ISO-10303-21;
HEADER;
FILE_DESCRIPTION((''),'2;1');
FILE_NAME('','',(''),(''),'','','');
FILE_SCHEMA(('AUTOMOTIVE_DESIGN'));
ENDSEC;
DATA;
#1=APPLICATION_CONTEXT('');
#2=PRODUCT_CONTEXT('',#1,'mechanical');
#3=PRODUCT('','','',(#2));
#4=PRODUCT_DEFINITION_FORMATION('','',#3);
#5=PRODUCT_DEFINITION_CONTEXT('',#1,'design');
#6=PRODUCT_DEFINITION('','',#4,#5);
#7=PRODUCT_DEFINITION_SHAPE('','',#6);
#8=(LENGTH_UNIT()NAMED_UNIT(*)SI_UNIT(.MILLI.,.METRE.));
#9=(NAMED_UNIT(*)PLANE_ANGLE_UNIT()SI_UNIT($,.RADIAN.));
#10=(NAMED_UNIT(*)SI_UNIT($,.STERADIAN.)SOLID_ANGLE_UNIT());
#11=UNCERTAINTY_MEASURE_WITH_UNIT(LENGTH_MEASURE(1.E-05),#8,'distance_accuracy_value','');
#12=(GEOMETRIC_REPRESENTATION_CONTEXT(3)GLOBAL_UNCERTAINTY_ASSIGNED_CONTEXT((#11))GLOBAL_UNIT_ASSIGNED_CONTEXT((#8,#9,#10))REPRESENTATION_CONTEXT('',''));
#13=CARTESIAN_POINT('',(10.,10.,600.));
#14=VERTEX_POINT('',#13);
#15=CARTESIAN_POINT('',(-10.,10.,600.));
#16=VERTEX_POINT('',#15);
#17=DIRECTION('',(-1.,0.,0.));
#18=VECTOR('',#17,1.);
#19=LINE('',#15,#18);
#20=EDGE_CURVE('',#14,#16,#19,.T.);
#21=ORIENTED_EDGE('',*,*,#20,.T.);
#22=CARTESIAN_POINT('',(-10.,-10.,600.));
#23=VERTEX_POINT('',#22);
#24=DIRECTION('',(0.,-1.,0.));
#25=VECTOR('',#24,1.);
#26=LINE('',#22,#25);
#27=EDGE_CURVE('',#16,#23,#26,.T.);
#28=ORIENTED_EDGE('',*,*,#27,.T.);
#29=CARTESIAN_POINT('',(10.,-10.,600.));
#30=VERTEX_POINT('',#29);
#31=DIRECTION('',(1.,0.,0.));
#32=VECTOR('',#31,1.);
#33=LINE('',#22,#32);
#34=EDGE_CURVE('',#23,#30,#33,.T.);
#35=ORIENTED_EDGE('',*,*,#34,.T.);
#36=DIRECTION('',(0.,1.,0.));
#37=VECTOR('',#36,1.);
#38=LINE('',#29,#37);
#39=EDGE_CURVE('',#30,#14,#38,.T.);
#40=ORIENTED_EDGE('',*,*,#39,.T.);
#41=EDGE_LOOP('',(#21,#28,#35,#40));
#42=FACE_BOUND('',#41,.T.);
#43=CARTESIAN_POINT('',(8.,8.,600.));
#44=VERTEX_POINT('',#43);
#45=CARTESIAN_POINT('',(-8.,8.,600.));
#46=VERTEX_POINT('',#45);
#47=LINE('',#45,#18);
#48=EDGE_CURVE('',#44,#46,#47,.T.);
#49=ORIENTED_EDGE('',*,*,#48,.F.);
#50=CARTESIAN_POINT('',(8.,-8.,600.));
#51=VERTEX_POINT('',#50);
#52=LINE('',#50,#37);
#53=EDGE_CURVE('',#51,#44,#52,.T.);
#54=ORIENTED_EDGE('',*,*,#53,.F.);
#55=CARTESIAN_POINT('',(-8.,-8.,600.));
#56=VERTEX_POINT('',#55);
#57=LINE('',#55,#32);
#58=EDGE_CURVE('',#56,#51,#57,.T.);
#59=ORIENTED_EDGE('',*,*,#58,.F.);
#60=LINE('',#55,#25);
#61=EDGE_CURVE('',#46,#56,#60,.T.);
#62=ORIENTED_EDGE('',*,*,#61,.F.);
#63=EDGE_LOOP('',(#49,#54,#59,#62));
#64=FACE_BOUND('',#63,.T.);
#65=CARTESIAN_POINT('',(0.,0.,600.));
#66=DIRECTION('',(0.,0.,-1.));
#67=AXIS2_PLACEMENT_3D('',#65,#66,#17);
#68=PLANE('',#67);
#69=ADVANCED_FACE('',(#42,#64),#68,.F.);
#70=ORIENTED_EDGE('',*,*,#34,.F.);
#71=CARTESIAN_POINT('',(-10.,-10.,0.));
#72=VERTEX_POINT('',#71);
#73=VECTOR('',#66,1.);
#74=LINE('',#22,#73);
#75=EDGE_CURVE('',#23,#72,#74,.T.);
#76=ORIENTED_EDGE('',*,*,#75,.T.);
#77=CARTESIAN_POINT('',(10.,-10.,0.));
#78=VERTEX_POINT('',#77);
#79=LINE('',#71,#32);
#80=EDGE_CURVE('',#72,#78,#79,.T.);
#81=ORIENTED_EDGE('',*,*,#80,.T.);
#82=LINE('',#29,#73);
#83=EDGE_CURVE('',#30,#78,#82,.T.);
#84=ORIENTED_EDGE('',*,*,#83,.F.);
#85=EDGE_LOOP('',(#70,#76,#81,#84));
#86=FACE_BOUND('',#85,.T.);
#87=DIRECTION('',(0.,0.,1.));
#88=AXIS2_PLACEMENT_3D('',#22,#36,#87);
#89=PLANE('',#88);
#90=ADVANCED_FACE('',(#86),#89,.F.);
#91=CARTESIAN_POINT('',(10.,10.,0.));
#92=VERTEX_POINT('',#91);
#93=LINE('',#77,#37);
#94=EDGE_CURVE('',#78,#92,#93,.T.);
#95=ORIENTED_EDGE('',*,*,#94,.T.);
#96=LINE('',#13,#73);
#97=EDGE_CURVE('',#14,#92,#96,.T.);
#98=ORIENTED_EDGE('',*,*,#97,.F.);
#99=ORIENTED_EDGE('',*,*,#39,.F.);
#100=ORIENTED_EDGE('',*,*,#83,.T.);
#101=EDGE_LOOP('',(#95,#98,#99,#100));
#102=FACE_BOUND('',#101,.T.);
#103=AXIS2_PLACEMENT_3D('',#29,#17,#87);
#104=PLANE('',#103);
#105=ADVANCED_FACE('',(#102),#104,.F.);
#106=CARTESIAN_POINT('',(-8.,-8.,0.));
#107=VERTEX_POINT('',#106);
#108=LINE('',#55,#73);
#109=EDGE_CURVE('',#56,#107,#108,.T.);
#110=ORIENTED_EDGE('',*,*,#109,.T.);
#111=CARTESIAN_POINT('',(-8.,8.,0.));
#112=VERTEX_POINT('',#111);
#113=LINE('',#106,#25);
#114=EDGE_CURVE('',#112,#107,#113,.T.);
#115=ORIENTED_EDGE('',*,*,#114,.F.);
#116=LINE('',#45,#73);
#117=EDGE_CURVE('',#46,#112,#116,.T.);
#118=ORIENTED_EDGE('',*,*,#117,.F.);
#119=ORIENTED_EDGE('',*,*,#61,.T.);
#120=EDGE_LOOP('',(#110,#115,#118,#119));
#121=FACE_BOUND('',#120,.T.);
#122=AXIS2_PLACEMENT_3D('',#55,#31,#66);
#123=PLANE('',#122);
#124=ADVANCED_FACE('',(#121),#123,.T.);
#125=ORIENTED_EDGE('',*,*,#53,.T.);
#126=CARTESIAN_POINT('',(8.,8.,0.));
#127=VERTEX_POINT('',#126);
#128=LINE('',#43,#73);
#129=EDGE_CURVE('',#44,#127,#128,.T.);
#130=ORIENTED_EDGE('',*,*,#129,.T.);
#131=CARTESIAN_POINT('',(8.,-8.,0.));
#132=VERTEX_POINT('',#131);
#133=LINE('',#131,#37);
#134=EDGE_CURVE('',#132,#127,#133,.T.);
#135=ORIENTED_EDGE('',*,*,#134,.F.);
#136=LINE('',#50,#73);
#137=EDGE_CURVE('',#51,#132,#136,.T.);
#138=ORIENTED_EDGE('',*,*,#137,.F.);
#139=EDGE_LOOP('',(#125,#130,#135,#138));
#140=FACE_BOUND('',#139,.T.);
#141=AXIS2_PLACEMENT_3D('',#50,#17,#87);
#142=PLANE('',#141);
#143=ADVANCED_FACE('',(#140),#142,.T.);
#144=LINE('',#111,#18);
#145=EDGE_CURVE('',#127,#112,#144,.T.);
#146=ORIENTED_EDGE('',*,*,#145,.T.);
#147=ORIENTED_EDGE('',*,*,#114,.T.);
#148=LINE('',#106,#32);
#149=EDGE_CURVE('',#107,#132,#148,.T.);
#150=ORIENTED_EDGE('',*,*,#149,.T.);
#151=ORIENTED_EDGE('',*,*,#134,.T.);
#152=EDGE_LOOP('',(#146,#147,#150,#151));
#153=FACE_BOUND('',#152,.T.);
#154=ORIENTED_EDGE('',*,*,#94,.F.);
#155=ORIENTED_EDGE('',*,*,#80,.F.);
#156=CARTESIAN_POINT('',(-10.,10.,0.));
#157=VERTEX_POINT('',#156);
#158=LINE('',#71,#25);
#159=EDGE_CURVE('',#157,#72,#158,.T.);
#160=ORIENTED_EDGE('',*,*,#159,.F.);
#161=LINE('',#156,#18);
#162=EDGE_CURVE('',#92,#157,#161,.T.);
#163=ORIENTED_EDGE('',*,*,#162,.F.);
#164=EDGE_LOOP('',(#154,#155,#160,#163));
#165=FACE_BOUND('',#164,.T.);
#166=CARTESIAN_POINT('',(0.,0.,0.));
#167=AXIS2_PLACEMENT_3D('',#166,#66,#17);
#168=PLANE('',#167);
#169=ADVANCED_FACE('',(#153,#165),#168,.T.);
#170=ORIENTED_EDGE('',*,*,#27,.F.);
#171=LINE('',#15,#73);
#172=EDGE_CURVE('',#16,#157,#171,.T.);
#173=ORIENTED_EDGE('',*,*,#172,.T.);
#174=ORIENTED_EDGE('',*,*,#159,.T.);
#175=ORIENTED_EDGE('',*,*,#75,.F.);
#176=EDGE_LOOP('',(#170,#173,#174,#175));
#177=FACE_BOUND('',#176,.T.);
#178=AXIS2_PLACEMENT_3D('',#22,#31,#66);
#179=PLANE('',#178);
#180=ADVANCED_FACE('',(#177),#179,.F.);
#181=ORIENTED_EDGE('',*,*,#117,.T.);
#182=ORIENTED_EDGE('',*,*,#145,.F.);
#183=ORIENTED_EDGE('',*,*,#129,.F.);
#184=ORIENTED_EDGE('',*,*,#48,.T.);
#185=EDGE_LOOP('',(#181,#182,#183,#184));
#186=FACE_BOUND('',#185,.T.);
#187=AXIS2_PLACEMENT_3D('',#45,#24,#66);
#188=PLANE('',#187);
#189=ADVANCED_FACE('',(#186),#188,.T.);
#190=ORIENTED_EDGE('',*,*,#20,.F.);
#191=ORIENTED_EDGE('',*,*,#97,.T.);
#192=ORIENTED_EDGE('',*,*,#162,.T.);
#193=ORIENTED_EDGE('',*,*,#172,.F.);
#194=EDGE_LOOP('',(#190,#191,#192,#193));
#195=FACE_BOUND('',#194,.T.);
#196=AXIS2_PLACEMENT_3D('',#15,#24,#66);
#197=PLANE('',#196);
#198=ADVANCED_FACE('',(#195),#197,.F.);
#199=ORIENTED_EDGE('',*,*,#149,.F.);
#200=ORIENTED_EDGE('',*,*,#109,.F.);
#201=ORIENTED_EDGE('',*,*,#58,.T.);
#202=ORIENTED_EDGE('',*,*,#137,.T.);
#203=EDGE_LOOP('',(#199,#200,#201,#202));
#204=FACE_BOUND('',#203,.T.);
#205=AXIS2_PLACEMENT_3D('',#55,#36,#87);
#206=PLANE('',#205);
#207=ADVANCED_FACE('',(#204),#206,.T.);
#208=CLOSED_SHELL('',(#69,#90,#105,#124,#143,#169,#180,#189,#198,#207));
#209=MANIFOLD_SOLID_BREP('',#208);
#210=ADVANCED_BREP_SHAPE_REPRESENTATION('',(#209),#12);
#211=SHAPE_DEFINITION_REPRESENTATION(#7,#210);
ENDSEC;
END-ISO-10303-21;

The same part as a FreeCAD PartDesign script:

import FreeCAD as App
import Part
import Sketcher

V = App.Vector
Q = App.Units.Quantity


def add_polygon(sketch, points):
    """Adds a closed chain of lines whose ends are joined by coincident constraints."""
    first, n = sketch.GeometryCount, len(points)
    for a, b in zip(points, points[1:] + points[:1]):
        sketch.addGeometry(Part.LineSegment(App.Vector(*a, 0), App.Vector(*b, 0)), False)
    for i in range(n):
        sketch.addConstraint(Sketcher.Constraint("Coincident", first + i, 2, first + (i + 1) % n, 1))

doc = App.newDocument("Part")
body = doc.addObject("PartDesign::Body", "Body")

# Sketch on XY plane
sketch1 = body.newObject("Sketcher::SketchObject", "Sketch")
sketch1.AttachmentSupport = (doc.getObject("XY_Plane"), [""])
sketch1.MapMode = "FlatFace"
add_polygon(sketch1, [(-10, 10), (-10, -10), (10, -10), (10, 10)])  # lines 0-3
add_polygon(sketch1, [(8, -8), (-8, -8), (-8, 8), (8, 8)])  # lines 4-7
sketch1.addConstraint(Sketcher.Constraint("Vertical", 0))
sketch1.addConstraint(Sketcher.Constraint("Horizontal", 1))
sketch1.addConstraint(Sketcher.Constraint("Vertical", 2))
sketch1.addConstraint(Sketcher.Constraint("Horizontal", 3))
sketch1.addConstraint(Sketcher.Constraint("Horizontal", 4))
sketch1.addConstraint(Sketcher.Constraint("Vertical", 5))
sketch1.addConstraint(Sketcher.Constraint("Horizontal", 6))
sketch1.addConstraint(Sketcher.Constraint("Vertical", 7))
sketch1.addConstraint(Sketcher.Constraint("Symmetric", 0, 2, 2, 2, -1, 1))
sketch1.addConstraint(Sketcher.Constraint("Symmetric", 4, 2, 6, 2, -1, 1))
sketch1.addConstraint(Sketcher.Constraint("Equal", 3, 0))
sketch1.addConstraint(Sketcher.Constraint("Equal", 6, 5))
sketch1.addConstraint(Sketcher.Constraint("DistanceX", 1, 1, 1, 2, Q("20 mm")))
sketch1.addConstraint(Sketcher.Constraint("DistanceX", 4, 2, 4, 1, Q("16 mm")))
pad1 = body.newObject("PartDesign::Pad", "Pad")
pad1.Profile = sketch1
pad1.Length = 600

doc.recompute()
